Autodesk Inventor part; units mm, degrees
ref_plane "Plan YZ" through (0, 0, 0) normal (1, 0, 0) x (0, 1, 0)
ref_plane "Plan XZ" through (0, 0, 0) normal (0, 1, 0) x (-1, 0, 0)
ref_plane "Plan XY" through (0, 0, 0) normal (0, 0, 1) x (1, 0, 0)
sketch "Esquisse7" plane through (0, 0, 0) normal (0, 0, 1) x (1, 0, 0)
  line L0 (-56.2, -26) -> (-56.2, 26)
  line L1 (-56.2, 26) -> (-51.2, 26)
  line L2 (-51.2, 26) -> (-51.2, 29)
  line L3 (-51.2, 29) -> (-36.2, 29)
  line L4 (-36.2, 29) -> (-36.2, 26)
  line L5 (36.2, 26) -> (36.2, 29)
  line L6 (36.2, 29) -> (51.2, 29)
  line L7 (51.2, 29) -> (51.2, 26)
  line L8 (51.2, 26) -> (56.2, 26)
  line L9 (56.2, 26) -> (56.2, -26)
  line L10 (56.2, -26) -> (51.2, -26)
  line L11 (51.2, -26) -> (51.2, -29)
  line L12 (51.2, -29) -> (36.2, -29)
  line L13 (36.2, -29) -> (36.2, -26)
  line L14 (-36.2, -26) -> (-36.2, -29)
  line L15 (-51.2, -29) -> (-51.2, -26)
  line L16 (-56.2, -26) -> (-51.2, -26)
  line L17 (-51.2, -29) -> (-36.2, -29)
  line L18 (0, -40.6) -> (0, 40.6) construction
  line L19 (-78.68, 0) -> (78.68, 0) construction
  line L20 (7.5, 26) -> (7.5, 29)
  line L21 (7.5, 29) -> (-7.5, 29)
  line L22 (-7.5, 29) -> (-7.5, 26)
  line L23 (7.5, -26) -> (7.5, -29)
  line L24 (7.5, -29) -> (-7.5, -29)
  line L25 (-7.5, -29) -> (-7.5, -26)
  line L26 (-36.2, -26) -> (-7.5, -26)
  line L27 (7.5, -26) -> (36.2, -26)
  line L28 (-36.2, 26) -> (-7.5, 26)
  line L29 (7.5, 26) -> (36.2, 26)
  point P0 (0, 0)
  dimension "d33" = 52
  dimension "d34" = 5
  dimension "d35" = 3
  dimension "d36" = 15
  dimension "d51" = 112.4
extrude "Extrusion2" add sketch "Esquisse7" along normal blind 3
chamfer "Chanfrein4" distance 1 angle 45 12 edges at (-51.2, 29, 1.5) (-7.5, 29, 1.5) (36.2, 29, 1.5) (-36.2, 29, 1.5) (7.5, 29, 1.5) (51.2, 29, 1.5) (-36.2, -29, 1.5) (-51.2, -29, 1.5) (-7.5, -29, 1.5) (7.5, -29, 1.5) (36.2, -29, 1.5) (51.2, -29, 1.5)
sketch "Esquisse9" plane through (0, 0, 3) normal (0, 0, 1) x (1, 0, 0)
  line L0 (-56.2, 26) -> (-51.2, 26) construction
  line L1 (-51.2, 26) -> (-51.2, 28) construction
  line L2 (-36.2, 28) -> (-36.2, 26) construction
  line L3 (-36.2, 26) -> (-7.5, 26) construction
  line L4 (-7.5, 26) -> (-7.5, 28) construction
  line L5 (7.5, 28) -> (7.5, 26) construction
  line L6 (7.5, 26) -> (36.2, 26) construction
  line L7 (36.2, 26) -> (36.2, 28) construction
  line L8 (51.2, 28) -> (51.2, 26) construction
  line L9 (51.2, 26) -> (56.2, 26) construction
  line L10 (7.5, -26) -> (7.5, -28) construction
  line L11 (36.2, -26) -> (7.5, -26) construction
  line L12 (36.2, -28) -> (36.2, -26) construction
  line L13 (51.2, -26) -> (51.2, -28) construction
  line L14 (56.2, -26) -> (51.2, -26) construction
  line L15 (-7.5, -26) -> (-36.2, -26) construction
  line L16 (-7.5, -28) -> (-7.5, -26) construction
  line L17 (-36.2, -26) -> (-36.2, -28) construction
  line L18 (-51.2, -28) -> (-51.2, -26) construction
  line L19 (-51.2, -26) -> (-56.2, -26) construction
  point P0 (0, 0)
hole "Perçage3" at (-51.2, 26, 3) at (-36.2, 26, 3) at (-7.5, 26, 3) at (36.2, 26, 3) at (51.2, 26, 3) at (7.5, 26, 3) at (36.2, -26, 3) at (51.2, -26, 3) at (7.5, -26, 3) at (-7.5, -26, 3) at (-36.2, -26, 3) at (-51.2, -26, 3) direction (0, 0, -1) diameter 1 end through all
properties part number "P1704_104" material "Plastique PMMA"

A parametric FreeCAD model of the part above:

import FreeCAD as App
import Part
import Sketcher
Q = App.Units.Quantity


def edges_at(feature, points):
    """Names of the edges that pass closest to the given points."""
    edges = feature.Shape.Edges
    near = lambda p: min(range(len(edges)), key=lambda i: edges[i].distToShape(Part.Vertex(*p))[0])
    return sorted({f"Edge{near(p) + 1}" for p in points})

doc = App.newDocument("Part")
body = doc.addObject("PartDesign::Body", "Body")

# Sketch on XY plane
sketch1 = body.newObject("Sketcher::SketchObject", "Sketch")
sketch1.AttachmentSupport = (doc.getObject("XY_Plane"), [""])
sketch1.MapMode = "FlatFace"
sketch1.addGeometry(Part.LineSegment(App.Vector(-56.2, 26, 0), App.Vector(-56.2, -26, 0)), False)
sketch1.addGeometry(Part.LineSegment(App.Vector(-56.2, -26, 0), App.Vector(-51.2, -26, 0)), False)
sketch1.addGeometry(Part.LineSegment(App.Vector(-51.2, -26, 0), App.Vector(-51.2, -29, 0)), False)
sketch1.addGeometry(Part.LineSegment(App.Vector(-51.2, -29, 0), App.Vector(-36.2, -29, 0)), False)
sketch1.addGeometry(Part.LineSegment(App.Vector(-36.2, -29, 0), App.Vector(-36.2, -26, 0)), False)
sketch1.addGeometry(Part.LineSegment(App.Vector(-36.2, -26, 0), App.Vector(-7.5, -26, 0)), False)
sketch1.addGeometry(Part.LineSegment(App.Vector(-7.5, -26, 0), App.Vector(-7.5, -29, 0)), False)
sketch1.addGeometry(Part.LineSegment(App.Vector(-7.5, -29, 0), App.Vector(7.5, -29, 0)), False)
sketch1.addGeometry(Part.LineSegment(App.Vector(7.5, -29, 0), App.Vector(7.5, -26, 0)), False)
sketch1.addGeometry(Part.LineSegment(App.Vector(7.5, -26, 0), App.Vector(36.2, -26, 0)), False)
sketch1.addGeometry(Part.LineSegment(App.Vector(36.2, -26, 0), App.Vector(36.2, -29, 0)), False)
sketch1.addGeometry(Part.LineSegment(App.Vector(36.2, -29, 0), App.Vector(51.2, -29, 0)), False)
sketch1.addGeometry(Part.LineSegment(App.Vector(51.2, -29, 0), App.Vector(51.2, -26, 0)), False)
sketch1.addGeometry(Part.LineSegment(App.Vector(51.2, -26, 0), App.Vector(56.2, -26, 0)), False)
sketch1.addGeometry(Part.LineSegment(App.Vector(56.2, -26, 0), App.Vector(56.2, 26, 0)), False)
sketch1.addGeometry(Part.LineSegment(App.Vector(56.2, 26, 0), App.Vector(51.2, 26, 0)), False)
sketch1.addGeometry(Part.LineSegment(App.Vector(51.2, 26, 0), App.Vector(51.2, 29, 0)), False)
sketch1.addGeometry(Part.LineSegment(App.Vector(51.2, 29, 0), App.Vector(36.2, 29, 0)), False)
sketch1.addGeometry(Part.LineSegment(App.Vector(36.2, 29, 0), App.Vector(36.2, 26, 0)), False)
sketch1.addGeometry(Part.LineSegment(App.Vector(36.2, 26, 0), App.Vector(7.5, 26, 0)), False)
sketch1.addGeometry(Part.LineSegment(App.Vector(7.5, 26, 0), App.Vector(7.5, 29, 0)), False)
sketch1.addGeometry(Part.LineSegment(App.Vector(7.5, 29, 0), App.Vector(-7.5, 29, 0)), False)
sketch1.addGeometry(Part.LineSegment(App.Vector(-7.5, 29, 0), App.Vector(-7.5, 26, 0)), False)
sketch1.addGeometry(Part.LineSegment(App.Vector(-7.5, 26, 0), App.Vector(-36.2, 26, 0)), False)
sketch1.addGeometry(Part.LineSegment(App.Vector(-36.2, 26, 0), App.Vector(-36.2, 29, 0)), False)
sketch1.addGeometry(Part.LineSegment(App.Vector(-36.2, 29, 0), App.Vector(-51.2, 29, 0)), False)
sketch1.addGeometry(Part.LineSegment(App.Vector(-51.2, 29, 0), App.Vector(-51.2, 26, 0)), False)
sketch1.addGeometry(Part.LineSegment(App.Vector(-51.2, 26, 0), App.Vector(-56.2, 26, 0)), False)
sketch1.addConstraint(Sketcher.Constraint("Coincident", 0, 2, 1, 1))
sketch1.addConstraint(Sketcher.Constraint("Coincident", 1, 2, 2, 1))
sketch1.addConstraint(Sketcher.Constraint("Coincident", 2, 2, 3, 1))
sketch1.addConstraint(Sketcher.Constraint("Coincident", 3, 2, 4, 1))
sketch1.addConstraint(Sketcher.Constraint("Coincident", 4, 2, 5, 1))
sketch1.addConstraint(Sketcher.Constraint("Coincident", 5, 2, 6, 1))
sketch1.addConstraint(Sketcher.Constraint("Coincident", 6, 2, 7, 1))
sketch1.addConstraint(Sketcher.Constraint("Coincident", 7, 2, 8, 1))
sketch1.addConstraint(Sketcher.Constraint("Coincident", 8, 2, 9, 1))
sketch1.addConstraint(Sketcher.Constraint("Coincident", 9, 2, 10, 1))
sketch1.addConstraint(Sketcher.Constraint("Coincident", 10, 2, 11, 1))
sketch1.addConstraint(Sketcher.Constraint("Coincident", 11, 2, 12, 1))
sketch1.addConstraint(Sketcher.Constraint("Coincident", 12, 2, 13, 1))
sketch1.addConstraint(Sketcher.Constraint("Coincident", 13, 2, 14, 1))
sketch1.addConstraint(Sketcher.Constraint("Coincident", 14, 2, 15, 1))
sketch1.addConstraint(Sketcher.Constraint("Coincident", 15, 2, 16, 1))
sketch1.addConstraint(Sketcher.Constraint("Coincident", 16, 2, 17, 1))
sketch1.addConstraint(Sketcher.Constraint("Coincident", 17, 2, 18, 1))
sketch1.addConstraint(Sketcher.Constraint("Coincident", 18, 2, 19, 1))
sketch1.addConstraint(Sketcher.Constraint("Coincident", 19, 2, 20, 1))
sketch1.addConstraint(Sketcher.Constraint("Coincident", 20, 2, 21, 1))
sketch1.addConstraint(Sketcher.Constraint("Coincident", 21, 2, 22, 1))
sketch1.addConstraint(Sketcher.Constraint("Coincident", 22, 2, 23, 1))
sketch1.addConstraint(Sketcher.Constraint("Coincident", 23, 2, 24, 1))
sketch1.addConstraint(Sketcher.Constraint("Coincident", 24, 2, 25, 1))
sketch1.addConstraint(Sketcher.Constraint("Coincident", 25, 2, 26, 1))
sketch1.addConstraint(Sketcher.Constraint("Coincident", 26, 2, 27, 1))
sketch1.addConstraint(Sketcher.Constraint("Coincident", 27, 2, 0, 1))
sketch1.addConstraint(Sketcher.Constraint("Vertical", 0))
sketch1.addConstraint(Sketcher.Constraint("Horizontal", 1))
sketch1.addConstraint(Sketcher.Constraint("Vertical", 2))
sketch1.addConstraint(Sketcher.Constraint("Horizontal", 3))
sketch1.addConstraint(Sketcher.Constraint("Vertical", 4))
sketch1.addConstraint(Sketcher.Constraint("Horizontal", 5))
sketch1.addConstraint(Sketcher.Constraint("Vertical", 6))
sketch1.addConstraint(Sketcher.Constraint("Horizontal", 7))
sketch1.addConstraint(Sketcher.Constraint("Vertical", 8))
sketch1.addConstraint(Sketcher.Constraint("Horizontal", 9))
sketch1.addConstraint(Sketcher.Constraint("Vertical", 10))
sketch1.addConstraint(Sketcher.Constraint("Horizontal", 11))
sketch1.addConstraint(Sketcher.Constraint("Vertical", 12))
sketch1.addConstraint(Sketcher.Constraint("Horizontal", 13))
sketch1.addConstraint(Sketcher.Constraint("Vertical", 14))
sketch1.addConstraint(Sketcher.Constraint("Horizontal", 15))
sketch1.addConstraint(Sketcher.Constraint("Vertical", 16))
sketch1.addConstraint(Sketcher.Constraint("Horizontal", 17))
sketch1.addConstraint(Sketcher.Constraint("Vertical", 18))
sketch1.addConstraint(Sketcher.Constraint("Horizontal", 19))
sketch1.addConstraint(Sketcher.Constraint("Vertical", 20))
sketch1.addConstraint(Sketcher.Constraint("Horizontal", 21))
sketch1.addConstraint(Sketcher.Constraint("Vertical", 22))
sketch1.addConstraint(Sketcher.Constraint("Horizontal", 23))
sketch1.addConstraint(Sketcher.Constraint("Vertical", 24))
sketch1.addConstraint(Sketcher.Constraint("Horizontal", 25))
sketch1.addConstraint(Sketcher.Constraint("Vertical", 26))
sketch1.addConstraint(Sketcher.Constraint("Horizontal", 27))
sketch1.addConstraint(Sketcher.Constraint("Symmetric", 0, 2, 14, 2, -1, 1))
sketch1.addConstraint(Sketcher.Constraint("Symmetric", 2, 2, 16, 2, -1, 1))
sketch1.addConstraint(Sketcher.Constraint("Symmetric", 4, 2, 18, 2, -1, 1))
sketch1.addConstraint(Sketcher.Constraint("Symmetric", 6, 2, 20, 2, -1, 1))
sketch1.addConstraint(Sketcher.Constraint("Symmetric", 8, 2, 22, 2, -1, 1))
sketch1.addConstraint(Sketcher.Constraint("Symmetric", 10, 2, 24, 2, -1, 1))
sketch1.addConstraint(Sketcher.Constraint("Symmetric", 12, 2, 26, 2, -1, 1))
sketch1.addConstraint(Sketcher.Constraint("Symmetric", 5, 2, 8, 2, -2))
sketch1.addConstraint(Sketcher.Constraint("Symmetric", 3, 2, 10, 2, -2))
sketch1.addConstraint(Sketcher.Constraint("Symmetric", 1, 2, 12, 2, -2))
sketch1.addConstraint(Sketcher.Constraint("Horizontal", 1, 2, 4, 2))
sketch1.addConstraint(Sketcher.Constraint("Horizontal", 3, 2, 6, 2))
sketch1.addConstraint(Sketcher.Constraint("Equal", 3, 7))
sketch1.addConstraint(Sketcher.Constraint("DistanceX", 1, 1, 1, 2, Q("5 mm")))
sketch1.addConstraint(Sketcher.Constraint("DistanceX", 3, 1, 3, 2, Q("15 mm")))
sketch1.addConstraint(Sketcher.Constraint("DistanceY", 0, 2, 0, 1, Q("52 mm")))
sketch1.addConstraint(Sketcher.Constraint("DistanceY", 2, 2, 2, 1, Q("3 mm")))
sketch1.addConstraint(Sketcher.Constraint("DistanceX", 5, 1, 5, 2, Q("28.7 mm")))
pad1 = body.newObject("PartDesign::Pad", "Pad")
pad1.Profile = sketch1
pad1.Length = 3
doc.recompute()

chamfer = body.newObject("PartDesign::Chamfer", "Chamfer")
chamfer.Base = (pad1, edges_at(pad1, [
    (-51.2, 29, 1.5),
    (-7.5, 29, 1.5),
    (36.2, 29, 1.5),
    (-36.2, 29, 1.5),
    (7.5, 29, 1.5),
    (51.2, 29, 1.5),
    (-36.2, -29, 1.5),
    (-51.2, -29, 1.5),
    (-7.5, -29, 1.5),
    (7.5, -29, 1.5),
    (36.2, -29, 1.5),
    (51.2, -29, 1.5),
]))
chamfer.Size = 1

# Sketch on XY plane
sketch2 = body.newObject("Sketcher::SketchObject", "Sketch001")
sketch2.AttachmentSupport = (doc.getObject("XY_Plane"), [""])
sketch2.MapMode = "FlatFace"
sketch2.AttachmentOffset = App.Placement(App.Vector(0, 0, 3), App.Rotation())
sketch2.addGeometry(Part.Circle(App.Vector(-51.2, 26, 0), App.Vector(0, 0, 1), 0.5), False)
sketch2.addGeometry(Part.Circle(App.Vector(-36.2, 26, 0), App.Vector(0, 0, 1), 0.5), False)
sketch2.addGeometry(Part.Circle(App.Vector(-7.5, 26, 0), App.Vector(0, 0, 1), 0.5), False)
sketch2.addGeometry(Part.Circle(App.Vector(36.2, 26, 0), App.Vector(0, 0, 1), 0.5), False)
sketch2.addGeometry(Part.Circle(App.Vector(51.2, 26, 0), App.Vector(0, 0, 1), 0.5), False)
sketch2.addGeometry(Part.Circle(App.Vector(7.5, 26, 0), App.Vector(0, 0, 1), 0.5), False)
sketch2.addGeometry(Part.Circle(App.Vector(36.2, -26, 0), App.Vector(0, 0, 1), 0.5), False)
sketch2.addGeometry(Part.Circle(App.Vector(51.2, -26, 0), App.Vector(0, 0, 1), 0.5), False)
sketch2.addGeometry(Part.Circle(App.Vector(7.5, -26, 0), App.Vector(0, 0, 1), 0.5), False)
sketch2.addGeometry(Part.Circle(App.Vector(-7.5, -26, 0), App.Vector(0, 0, 1), 0.5), False)
sketch2.addGeometry(Part.Circle(App.Vector(-36.2, -26, 0), App.Vector(0, 0, 1), 0.5), False)
sketch2.addGeometry(Part.Circle(App.Vector(-51.2, -26, 0), App.Vector(0, 0, 1), 0.5), False)
sketch2.addConstraint(Sketcher.Constraint("Equal", 0, 1))
sketch2.addConstraint(Sketcher.Constraint("Equal", 1, 2))
sketch2.addConstraint(Sketcher.Constraint("Equal", 2, 3))
sketch2.addConstraint(Sketcher.Constraint("Equal", 3, 4))
sketch2.addConstraint(Sketcher.Constraint("Equal", 4, 5))
sketch2.addConstraint(Sketcher.Constraint("Equal", 5, 6))
sketch2.addConstraint(Sketcher.Constraint("Equal", 6, 7))
sketch2.addConstraint(Sketcher.Constraint("Equal", 7, 8))
sketch2.addConstraint(Sketcher.Constraint("Equal", 8, 9))
sketch2.addConstraint(Sketcher.Constraint("Equal", 9, 10))
sketch2.addConstraint(Sketcher.Constraint("Equal", 10, 11))
sketch2.addConstraint(Sketcher.Constraint("Symmetric", 1, 3, 6, 3, -1, 1))
sketch2.addConstraint(Sketcher.Constraint("Symmetric", 0, 3, 7, 3, -1, 1))
sketch2.addConstraint(Sketcher.Constraint("Symmetric", 2, 3, 8, 3, -1, 1))
sketch2.addConstraint(Sketcher.Constraint("Symmetric", 5, 3, 9, 3, -1, 1))
sketch2.addConstraint(Sketcher.Constraint("Symmetric", 3, 3, 10, 3, -1, 1))
sketch2.addConstraint(Sketcher.Constraint("Symmetric", 4, 3, 11, 3, -1, 1))
sketch2.addConstraint(Sketcher.Constraint("Symmetric", 1, 3, 3, 3, -2))
sketch2.addConstraint(Sketcher.Constraint("Symmetric", 0, 3, 4, 3, -2))
sketch2.addConstraint(Sketcher.Constraint("Symmetric", 2, 3, 5, 3, -2))
sketch2.addConstraint(Sketcher.Constraint("Horizontal", 0, 3, 1, 3))
sketch2.addConstraint(Sketcher.Constraint("Horizontal", 1, 3, 2, 3))
sketch2.addConstraint(Sketcher.Constraint("Diameter", 0, Q("1 mm")))
sketch2.addConstraint(Sketcher.Constraint("DistanceY", -1, 1, 0, 3, Q("26 mm")))
sketch2.addConstraint(Sketcher.Constraint("DistanceX", 0, 3, 1, 3, Q("15 mm")))
sketch2.addConstraint(Sketcher.Constraint("DistanceX", 2, 3, 5, 3, Q("15 mm")))
sketch2.addConstraint(Sketcher.Constraint("DistanceX", 0, 3, -1, 1, Q("51.2 mm")))
doc.recompute()
hole = body.newObject("PartDesign::Hole", "Hole")
hole.Profile = sketch2
hole.ThreadType = "None"
hole.Diameter = 1
hole.DepthType = "ThroughAll"

doc.recompute()
